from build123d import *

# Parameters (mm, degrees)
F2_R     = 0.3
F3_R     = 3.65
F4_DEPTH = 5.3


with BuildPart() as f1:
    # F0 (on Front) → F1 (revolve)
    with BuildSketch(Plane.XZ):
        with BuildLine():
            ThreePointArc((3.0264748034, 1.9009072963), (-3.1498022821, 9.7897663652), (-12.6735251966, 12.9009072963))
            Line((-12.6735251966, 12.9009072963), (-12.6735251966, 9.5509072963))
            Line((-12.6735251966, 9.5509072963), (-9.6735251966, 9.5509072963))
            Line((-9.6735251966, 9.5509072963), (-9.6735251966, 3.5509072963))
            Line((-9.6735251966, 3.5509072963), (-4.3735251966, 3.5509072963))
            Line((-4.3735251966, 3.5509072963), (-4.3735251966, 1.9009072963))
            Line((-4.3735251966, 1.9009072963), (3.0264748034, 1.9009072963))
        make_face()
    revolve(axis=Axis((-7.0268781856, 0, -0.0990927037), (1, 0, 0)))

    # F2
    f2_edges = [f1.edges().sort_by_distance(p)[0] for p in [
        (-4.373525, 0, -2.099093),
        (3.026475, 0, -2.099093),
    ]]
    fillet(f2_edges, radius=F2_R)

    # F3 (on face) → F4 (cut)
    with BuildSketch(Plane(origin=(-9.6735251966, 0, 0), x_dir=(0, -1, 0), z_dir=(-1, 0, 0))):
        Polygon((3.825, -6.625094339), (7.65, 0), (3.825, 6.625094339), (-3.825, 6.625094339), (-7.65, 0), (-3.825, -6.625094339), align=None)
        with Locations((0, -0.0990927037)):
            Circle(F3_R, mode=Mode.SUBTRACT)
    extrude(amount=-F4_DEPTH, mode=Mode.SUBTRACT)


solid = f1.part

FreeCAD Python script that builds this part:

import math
import FreeCAD as App
import Part
import Sketcher
from FreeCAD import Vector
Q = App.Units.Quantity


def edges_at(feature, points):
    """Names of the edges that pass closest to the given points."""
    edges = feature.Shape.Edges
    near = lambda p: min(range(len(edges)), key=lambda i: edges[i].distToShape(Part.Vertex(*p))[0])
    return sorted({f"Edge{near(p) + 1}" for p in points})


def add_polygon(sketch, points):
    """Adds a closed chain of lines whose ends are joined by coincident constraints."""
    first, n = sketch.GeometryCount, len(points)
    for a, b in zip(points, points[1:] + points[:1]):
        sketch.addGeometry(Part.LineSegment(App.Vector(*a, 0), App.Vector(*b, 0)), False)
    for i in range(n):
        sketch.addConstraint(Sketcher.Constraint("Coincident", first + i, 2, first + (i + 1) % n, 1))

doc = App.newDocument("Part")
body = doc.addObject("PartDesign::Body", "Body")

sketch1 = doc.addObject("Sketcher::SketchObject", "Sketch")
body.addObject(sketch1)
sketch1.AttachmentSupport = (doc.XZ_Plane, [""])
sketch1.MapMode = "FlatFace"
sketch1.addGeometry(Part.ArcOfCircle(Part.Circle(Vector(-13, -4.3, 0), Vector(0, 0, 1), 17.2), math.radians(21), math.radians(89)), False)
sketch1.addGeometry(Part.LineSegment(Vector(-12.7, 12.9, 0), Vector(-12.7, 9.6, 0)), False)
sketch1.addGeometry(Part.LineSegment(Vector(-12.7, 9.6, 0), Vector(-9.7, 9.6, 0)), False)
sketch1.addGeometry(Part.LineSegment(Vector(-9.7, 9.6, 0), Vector(-9.7, 3.6, 0)), False)
sketch1.addGeometry(Part.LineSegment(Vector(-9.7, 3.6, 0), Vector(-4.4, 3.6, 0)), False)
sketch1.addGeometry(Part.LineSegment(Vector(-4.4, 3.6, 0), Vector(-4.4, 1.9, 0)), False)
sketch1.addGeometry(Part.LineSegment(Vector(-4.4, 1.9, 0), Vector(3, 1.9, 0)), False)
sketch1.addGeometry(Part.LineSegment(Vector(-13, -0.1, 0), Vector(3, -0.1, 0)), True)
sketch1.addConstraint(Sketcher.Constraint("Coincident", 0, 2, 1, 1))
sketch1.addConstraint(Sketcher.Constraint("Coincident", 1, 2, 2, 1))
sketch1.addConstraint(Sketcher.Constraint("Coincident", 2, 2, 3, 1))
sketch1.addConstraint(Sketcher.Constraint("Coincident", 3, 2, 4, 1))
sketch1.addConstraint(Sketcher.Constraint("Coincident", 4, 2, 5, 1))
sketch1.addConstraint(Sketcher.Constraint("Coincident", 5, 2, 6, 1))
sketch1.addConstraint(Sketcher.Constraint("Coincident", 6, 2, 0, 1))
sketch1.addConstraint(Sketcher.Constraint("Vertical", 1))
sketch1.addConstraint(Sketcher.Constraint("Horizontal", 2))
sketch1.addConstraint(Sketcher.Constraint("Vertical", 3))
sketch1.addConstraint(Sketcher.Constraint("Horizontal", 4))
sketch1.addConstraint(Sketcher.Constraint("Vertical", 5))
sketch1.addConstraint(Sketcher.Constraint("Horizontal", 6))
sketch1.addConstraint(Sketcher.Constraint("Horizontal", 7))
sketch1.addConstraint(Sketcher.Constraint("Vertical", 0, 3, 7, 1))
sketch1.addConstraint(Sketcher.Constraint("Vertical", 6, 2, 7, 2))
sketch1.addConstraint(Sketcher.Constraint("DistanceX", 2, 1, 2, 2, 3.0))
sketch1.addConstraint(Sketcher.Constraint("DistanceY", 3, 2, 3, 1, 6.0))
sketch1.addConstraint(Sketcher.Constraint("DistanceX", 4, 1, 4, 2, 5.3))
sketch1.addConstraint(Sketcher.Constraint("DistanceX", 6, 1, 6, 2, 7.4))
sketch1.addConstraint(Sketcher.Constraint("DistanceY", 7, 1, 5, 2, 2.0))
sketch1.addConstraint(Sketcher.Constraint("DistanceY", 1, 2, 1, 1, 3.35))
sketch1.addConstraint(Sketcher.Constraint("DistanceY", 5, 2, 5, 1, 1.65))
sketch1.addConstraint(Sketcher.Constraint("Radius", 0, 17.207022))
sketch1.addConstraint(Sketcher.Constraint("DistanceX", 0, 3, -1, 1, 13.023404))
sketch1.addConstraint(Sketcher.Constraint("DistanceY", 0, 3, -1, 1, 4.302557))
revolution = doc.addObject("PartDesign::Revolution", "Revolution")
body.addObject(revolution)
revolution.Profile = sketch1
revolution.ReferenceAxis = (sketch1, ["Axis0"])
revolution.Angle = 360
doc.recompute()

fillet = doc.addObject("PartDesign::Fillet", "Fillet")
body.addObject(fillet)
fillet.Base = (revolution, edges_at(revolution, [(-4.374, 0, -2.099), (3.026, 0, -2.099)]))
fillet.Radius = 0.3

sketch2 = doc.addObject("Sketcher::SketchObject", "Sketch001")
body.addObject(sketch2)
sketch2.AttachmentSupport = (doc.YZ_Plane, [""])
sketch2.MapMode = "FlatFace"
sketch2.AttachmentOffset = App.Placement(Vector(0, 0, -9.673525), App.Rotation())
add_polygon(sketch2, [(-3.8, -6.6), (-7.7, 0), (-3.8, 6.6), (3.8, 6.6), (7.7, 0), (3.8, -6.6)])
sketch2.addGeometry(Part.Circle(Vector(0, -0.1, 0), Vector(0, 0, 1), 3.6), False)
sketch2.addConstraint(Sketcher.Constraint("Horizontal", 2))
sketch2.addConstraint(Sketcher.Constraint("Horizontal", 5))
sketch2.addConstraint(Sketcher.Constraint("Symmetric", 0, 2, 3, 2, -1, 1))
sketch2.addConstraint(Sketcher.Constraint("Symmetric", 1, 2, 4, 2, -1, 1))
sketch2.addConstraint(Sketcher.Constraint("PointOnObject", 6, 3, -2))
sketch2.addConstraint(Sketcher.Constraint("PointOnObject", 0, 2, -1))
sketch2.addConstraint(Sketcher.Constraint("Parallel", 0, 3))
sketch2.addConstraint(Sketcher.Constraint("Vertical", 2, 2, 4, 2))
sketch2.addConstraint(Sketcher.Constraint("Diameter", 6, 7.3))
sketch2.addConstraint(Sketcher.Constraint("Angle", 0, Q("120 deg")))
sketch2.addConstraint(Sketcher.Constraint("DistanceX", 2, 1, 2, 2, 7.65))
sketch2.addConstraint(Sketcher.Constraint("DistanceX", 0, 2, 3, 2, 15.3))
sketch2.addConstraint(Sketcher.Constraint("DistanceY", 4, 2, 6, 3, 6.526002))
pocket1 = doc.addObject("PartDesign::Pocket", "Pocket")
body.addObject(pocket1)
pocket1.Profile = sketch2
pocket1.Length = 5.3
pocket1.Reversed = True

doc.recompute()
